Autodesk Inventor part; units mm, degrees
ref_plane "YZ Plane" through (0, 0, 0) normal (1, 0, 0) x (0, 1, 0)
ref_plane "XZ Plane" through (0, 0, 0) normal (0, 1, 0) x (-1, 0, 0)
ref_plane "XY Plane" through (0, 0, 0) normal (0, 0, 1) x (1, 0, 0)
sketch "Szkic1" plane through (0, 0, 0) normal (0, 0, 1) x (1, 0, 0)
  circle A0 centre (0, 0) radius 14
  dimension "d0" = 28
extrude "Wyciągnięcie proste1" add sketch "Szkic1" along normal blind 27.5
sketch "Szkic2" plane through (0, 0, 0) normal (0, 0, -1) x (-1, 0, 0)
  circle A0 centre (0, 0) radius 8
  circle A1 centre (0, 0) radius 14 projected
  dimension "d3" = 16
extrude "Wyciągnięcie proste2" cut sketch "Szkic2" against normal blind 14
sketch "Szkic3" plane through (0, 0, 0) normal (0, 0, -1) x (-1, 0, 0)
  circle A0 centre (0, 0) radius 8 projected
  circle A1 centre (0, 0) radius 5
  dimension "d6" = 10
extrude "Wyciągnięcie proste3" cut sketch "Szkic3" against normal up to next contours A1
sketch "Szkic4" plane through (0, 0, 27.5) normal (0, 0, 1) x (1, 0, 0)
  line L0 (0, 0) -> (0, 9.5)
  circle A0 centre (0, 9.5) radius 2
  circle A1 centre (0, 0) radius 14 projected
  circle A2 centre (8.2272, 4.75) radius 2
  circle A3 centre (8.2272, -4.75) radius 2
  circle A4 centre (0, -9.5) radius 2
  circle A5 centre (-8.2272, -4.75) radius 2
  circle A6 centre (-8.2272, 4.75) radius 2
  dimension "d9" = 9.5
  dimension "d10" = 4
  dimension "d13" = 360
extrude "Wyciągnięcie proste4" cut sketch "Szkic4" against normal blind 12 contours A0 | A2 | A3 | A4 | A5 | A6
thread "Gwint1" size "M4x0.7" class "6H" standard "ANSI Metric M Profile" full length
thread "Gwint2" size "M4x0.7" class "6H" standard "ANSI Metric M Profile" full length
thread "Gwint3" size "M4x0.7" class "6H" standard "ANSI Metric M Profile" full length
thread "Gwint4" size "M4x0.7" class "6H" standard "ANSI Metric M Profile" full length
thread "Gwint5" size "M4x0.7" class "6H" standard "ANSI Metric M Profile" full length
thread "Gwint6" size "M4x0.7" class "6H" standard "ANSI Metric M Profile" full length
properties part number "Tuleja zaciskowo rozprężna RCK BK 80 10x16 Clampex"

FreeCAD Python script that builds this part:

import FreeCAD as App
import Part
import Sketcher

V = App.Vector
Q = App.Units.Quantity

doc = App.newDocument("Part")
body = doc.addObject("PartDesign::Body", "Body")

# Sketch on XY plane
sketch1 = doc.addObject("Sketcher::SketchObject", "Sketch")
body.addObject(sketch1)
sketch1.AttachmentSupport = (doc.XY_Plane, [""])
sketch1.MapMode = "FlatFace"
sketch1.addGeometry(Part.Circle(V(0, 0, 0), V(0, 0, 1), 14), False)
sketch1.addConstraint([
    Sketcher.Constraint("Coincident", 0, 3, -1, 1),
    Sketcher.Constraint("Diameter", 0, Q("28 mm")),
])
pad1 = doc.addObject("PartDesign::Pad", "Pad")
body.addObject(pad1)
pad1.Profile = sketch1
pad1.Length = 27.5

# Sketch on XY plane
sketch2 = doc.addObject("Sketcher::SketchObject", "Sketch001")
body.addObject(sketch2)
sketch2.AttachmentSupport = (doc.XY_Plane, [""])
sketch2.MapMode = "FlatFace"
sketch2.addGeometry([
    Part.Circle(V(0, 0, 0), V(0, 0, 1), 14),
    Part.Circle(V(0, 0, 0), V(0, 0, 1), 8),
], False)
sketch2.addConstraint([
    Sketcher.Constraint("Coincident", 0, 3, -1, 1),
    Sketcher.Constraint("Coincident", 1, 3, -1, 1),
    Sketcher.Constraint("Diameter", 1, Q("16 mm")),
    Sketcher.Constraint("Diameter", 0, Q("28 mm")),
])
pocket1 = doc.addObject("PartDesign::Pocket", "Pocket")
body.addObject(pocket1)
pocket1.Profile = sketch2
pocket1.Length = 14
pocket1.Reversed = True

# Sketch on XY plane
sketch3 = doc.addObject("Sketcher::SketchObject", "Sketch002")
body.addObject(sketch3)
sketch3.AttachmentSupport = (doc.XY_Plane, [""])
sketch3.MapMode = "FlatFace"
sketch3.addGeometry(Part.Circle(V(0, 0, 0), V(0, 0, 1), 5), False)
sketch3.addConstraint([
    Sketcher.Constraint("Coincident", 0, 3, -1, 1),
    Sketcher.Constraint("Diameter", 0, Q("10 mm")),
])
pocket2 = doc.addObject("PartDesign::Pocket", "Pocket001")
body.addObject(pocket2)
pocket2.Profile = sketch3
pocket2.Type = "UpToFirst"
pocket2.Reversed = True

# Sketch on XY plane
sketch4 = doc.addObject("Sketcher::SketchObject", "Sketch003")
body.addObject(sketch4)
sketch4.AttachmentSupport = (doc.XY_Plane, [""])
sketch4.MapMode = "FlatFace"
sketch4.AttachmentOffset = App.Placement(V(0, 0, 27.5), App.Rotation())
sketch4.addGeometry([
    Part.Circle(V(0, 9.5, 0), V(0, 0, 1), 2),  # 0
    Part.Circle(V(8.2, 4.8, 0), V(0, 0, 1), 2),  # 1
    Part.Circle(V(8.2, -4.8, 0), V(0, 0, 1), 2),  # 2
    Part.Circle(V(0, -9.5, 0), V(0, 0, 1), 2),  # 3
    Part.Circle(V(-8.2, -4.8, 0), V(0, 0, 1), 2),  # 4
    Part.Circle(V(-8.2, 4.8, 0), V(0, 0, 1), 2),  # 5
], False)
sketch4.addConstraint([
    Sketcher.Constraint("Equal", 0, 1),
    Sketcher.Constraint("Equal", 1, 2),
    Sketcher.Constraint("Equal", 2, 3),
    Sketcher.Constraint("Equal", 3, 4),
    Sketcher.Constraint("Equal", 4, 5),
    Sketcher.Constraint("Symmetric", 0, 3, 3, 3, -1, 1),
    Sketcher.Constraint("Symmetric", 1, 3, 4, 3, -1, 1),
    Sketcher.Constraint("Symmetric", 2, 3, 5, 3, -1, 1),
    Sketcher.Constraint("Symmetric", 2, 3, 4, 3, -2),
    Sketcher.Constraint("PointOnObject", 0, 3, -2),
    Sketcher.Constraint("Diameter", 0, Q("4 mm")),
    Sketcher.Constraint("DistanceY", -1, 1, 0, 3, Q("9.5 mm")),
    Sketcher.Constraint("DistanceY", 2, 3, 1, 3, Q("9.5 mm")),
    Sketcher.Constraint("DistanceX", -1, 1, 1, 3, Q("8.2272 mm")),
])
pocket3 = doc.addObject("PartDesign::Pocket", "Pocket002")
body.addObject(pocket3)
pocket3.Profile = sketch4
pocket3.Length = 12

doc.recompute()
